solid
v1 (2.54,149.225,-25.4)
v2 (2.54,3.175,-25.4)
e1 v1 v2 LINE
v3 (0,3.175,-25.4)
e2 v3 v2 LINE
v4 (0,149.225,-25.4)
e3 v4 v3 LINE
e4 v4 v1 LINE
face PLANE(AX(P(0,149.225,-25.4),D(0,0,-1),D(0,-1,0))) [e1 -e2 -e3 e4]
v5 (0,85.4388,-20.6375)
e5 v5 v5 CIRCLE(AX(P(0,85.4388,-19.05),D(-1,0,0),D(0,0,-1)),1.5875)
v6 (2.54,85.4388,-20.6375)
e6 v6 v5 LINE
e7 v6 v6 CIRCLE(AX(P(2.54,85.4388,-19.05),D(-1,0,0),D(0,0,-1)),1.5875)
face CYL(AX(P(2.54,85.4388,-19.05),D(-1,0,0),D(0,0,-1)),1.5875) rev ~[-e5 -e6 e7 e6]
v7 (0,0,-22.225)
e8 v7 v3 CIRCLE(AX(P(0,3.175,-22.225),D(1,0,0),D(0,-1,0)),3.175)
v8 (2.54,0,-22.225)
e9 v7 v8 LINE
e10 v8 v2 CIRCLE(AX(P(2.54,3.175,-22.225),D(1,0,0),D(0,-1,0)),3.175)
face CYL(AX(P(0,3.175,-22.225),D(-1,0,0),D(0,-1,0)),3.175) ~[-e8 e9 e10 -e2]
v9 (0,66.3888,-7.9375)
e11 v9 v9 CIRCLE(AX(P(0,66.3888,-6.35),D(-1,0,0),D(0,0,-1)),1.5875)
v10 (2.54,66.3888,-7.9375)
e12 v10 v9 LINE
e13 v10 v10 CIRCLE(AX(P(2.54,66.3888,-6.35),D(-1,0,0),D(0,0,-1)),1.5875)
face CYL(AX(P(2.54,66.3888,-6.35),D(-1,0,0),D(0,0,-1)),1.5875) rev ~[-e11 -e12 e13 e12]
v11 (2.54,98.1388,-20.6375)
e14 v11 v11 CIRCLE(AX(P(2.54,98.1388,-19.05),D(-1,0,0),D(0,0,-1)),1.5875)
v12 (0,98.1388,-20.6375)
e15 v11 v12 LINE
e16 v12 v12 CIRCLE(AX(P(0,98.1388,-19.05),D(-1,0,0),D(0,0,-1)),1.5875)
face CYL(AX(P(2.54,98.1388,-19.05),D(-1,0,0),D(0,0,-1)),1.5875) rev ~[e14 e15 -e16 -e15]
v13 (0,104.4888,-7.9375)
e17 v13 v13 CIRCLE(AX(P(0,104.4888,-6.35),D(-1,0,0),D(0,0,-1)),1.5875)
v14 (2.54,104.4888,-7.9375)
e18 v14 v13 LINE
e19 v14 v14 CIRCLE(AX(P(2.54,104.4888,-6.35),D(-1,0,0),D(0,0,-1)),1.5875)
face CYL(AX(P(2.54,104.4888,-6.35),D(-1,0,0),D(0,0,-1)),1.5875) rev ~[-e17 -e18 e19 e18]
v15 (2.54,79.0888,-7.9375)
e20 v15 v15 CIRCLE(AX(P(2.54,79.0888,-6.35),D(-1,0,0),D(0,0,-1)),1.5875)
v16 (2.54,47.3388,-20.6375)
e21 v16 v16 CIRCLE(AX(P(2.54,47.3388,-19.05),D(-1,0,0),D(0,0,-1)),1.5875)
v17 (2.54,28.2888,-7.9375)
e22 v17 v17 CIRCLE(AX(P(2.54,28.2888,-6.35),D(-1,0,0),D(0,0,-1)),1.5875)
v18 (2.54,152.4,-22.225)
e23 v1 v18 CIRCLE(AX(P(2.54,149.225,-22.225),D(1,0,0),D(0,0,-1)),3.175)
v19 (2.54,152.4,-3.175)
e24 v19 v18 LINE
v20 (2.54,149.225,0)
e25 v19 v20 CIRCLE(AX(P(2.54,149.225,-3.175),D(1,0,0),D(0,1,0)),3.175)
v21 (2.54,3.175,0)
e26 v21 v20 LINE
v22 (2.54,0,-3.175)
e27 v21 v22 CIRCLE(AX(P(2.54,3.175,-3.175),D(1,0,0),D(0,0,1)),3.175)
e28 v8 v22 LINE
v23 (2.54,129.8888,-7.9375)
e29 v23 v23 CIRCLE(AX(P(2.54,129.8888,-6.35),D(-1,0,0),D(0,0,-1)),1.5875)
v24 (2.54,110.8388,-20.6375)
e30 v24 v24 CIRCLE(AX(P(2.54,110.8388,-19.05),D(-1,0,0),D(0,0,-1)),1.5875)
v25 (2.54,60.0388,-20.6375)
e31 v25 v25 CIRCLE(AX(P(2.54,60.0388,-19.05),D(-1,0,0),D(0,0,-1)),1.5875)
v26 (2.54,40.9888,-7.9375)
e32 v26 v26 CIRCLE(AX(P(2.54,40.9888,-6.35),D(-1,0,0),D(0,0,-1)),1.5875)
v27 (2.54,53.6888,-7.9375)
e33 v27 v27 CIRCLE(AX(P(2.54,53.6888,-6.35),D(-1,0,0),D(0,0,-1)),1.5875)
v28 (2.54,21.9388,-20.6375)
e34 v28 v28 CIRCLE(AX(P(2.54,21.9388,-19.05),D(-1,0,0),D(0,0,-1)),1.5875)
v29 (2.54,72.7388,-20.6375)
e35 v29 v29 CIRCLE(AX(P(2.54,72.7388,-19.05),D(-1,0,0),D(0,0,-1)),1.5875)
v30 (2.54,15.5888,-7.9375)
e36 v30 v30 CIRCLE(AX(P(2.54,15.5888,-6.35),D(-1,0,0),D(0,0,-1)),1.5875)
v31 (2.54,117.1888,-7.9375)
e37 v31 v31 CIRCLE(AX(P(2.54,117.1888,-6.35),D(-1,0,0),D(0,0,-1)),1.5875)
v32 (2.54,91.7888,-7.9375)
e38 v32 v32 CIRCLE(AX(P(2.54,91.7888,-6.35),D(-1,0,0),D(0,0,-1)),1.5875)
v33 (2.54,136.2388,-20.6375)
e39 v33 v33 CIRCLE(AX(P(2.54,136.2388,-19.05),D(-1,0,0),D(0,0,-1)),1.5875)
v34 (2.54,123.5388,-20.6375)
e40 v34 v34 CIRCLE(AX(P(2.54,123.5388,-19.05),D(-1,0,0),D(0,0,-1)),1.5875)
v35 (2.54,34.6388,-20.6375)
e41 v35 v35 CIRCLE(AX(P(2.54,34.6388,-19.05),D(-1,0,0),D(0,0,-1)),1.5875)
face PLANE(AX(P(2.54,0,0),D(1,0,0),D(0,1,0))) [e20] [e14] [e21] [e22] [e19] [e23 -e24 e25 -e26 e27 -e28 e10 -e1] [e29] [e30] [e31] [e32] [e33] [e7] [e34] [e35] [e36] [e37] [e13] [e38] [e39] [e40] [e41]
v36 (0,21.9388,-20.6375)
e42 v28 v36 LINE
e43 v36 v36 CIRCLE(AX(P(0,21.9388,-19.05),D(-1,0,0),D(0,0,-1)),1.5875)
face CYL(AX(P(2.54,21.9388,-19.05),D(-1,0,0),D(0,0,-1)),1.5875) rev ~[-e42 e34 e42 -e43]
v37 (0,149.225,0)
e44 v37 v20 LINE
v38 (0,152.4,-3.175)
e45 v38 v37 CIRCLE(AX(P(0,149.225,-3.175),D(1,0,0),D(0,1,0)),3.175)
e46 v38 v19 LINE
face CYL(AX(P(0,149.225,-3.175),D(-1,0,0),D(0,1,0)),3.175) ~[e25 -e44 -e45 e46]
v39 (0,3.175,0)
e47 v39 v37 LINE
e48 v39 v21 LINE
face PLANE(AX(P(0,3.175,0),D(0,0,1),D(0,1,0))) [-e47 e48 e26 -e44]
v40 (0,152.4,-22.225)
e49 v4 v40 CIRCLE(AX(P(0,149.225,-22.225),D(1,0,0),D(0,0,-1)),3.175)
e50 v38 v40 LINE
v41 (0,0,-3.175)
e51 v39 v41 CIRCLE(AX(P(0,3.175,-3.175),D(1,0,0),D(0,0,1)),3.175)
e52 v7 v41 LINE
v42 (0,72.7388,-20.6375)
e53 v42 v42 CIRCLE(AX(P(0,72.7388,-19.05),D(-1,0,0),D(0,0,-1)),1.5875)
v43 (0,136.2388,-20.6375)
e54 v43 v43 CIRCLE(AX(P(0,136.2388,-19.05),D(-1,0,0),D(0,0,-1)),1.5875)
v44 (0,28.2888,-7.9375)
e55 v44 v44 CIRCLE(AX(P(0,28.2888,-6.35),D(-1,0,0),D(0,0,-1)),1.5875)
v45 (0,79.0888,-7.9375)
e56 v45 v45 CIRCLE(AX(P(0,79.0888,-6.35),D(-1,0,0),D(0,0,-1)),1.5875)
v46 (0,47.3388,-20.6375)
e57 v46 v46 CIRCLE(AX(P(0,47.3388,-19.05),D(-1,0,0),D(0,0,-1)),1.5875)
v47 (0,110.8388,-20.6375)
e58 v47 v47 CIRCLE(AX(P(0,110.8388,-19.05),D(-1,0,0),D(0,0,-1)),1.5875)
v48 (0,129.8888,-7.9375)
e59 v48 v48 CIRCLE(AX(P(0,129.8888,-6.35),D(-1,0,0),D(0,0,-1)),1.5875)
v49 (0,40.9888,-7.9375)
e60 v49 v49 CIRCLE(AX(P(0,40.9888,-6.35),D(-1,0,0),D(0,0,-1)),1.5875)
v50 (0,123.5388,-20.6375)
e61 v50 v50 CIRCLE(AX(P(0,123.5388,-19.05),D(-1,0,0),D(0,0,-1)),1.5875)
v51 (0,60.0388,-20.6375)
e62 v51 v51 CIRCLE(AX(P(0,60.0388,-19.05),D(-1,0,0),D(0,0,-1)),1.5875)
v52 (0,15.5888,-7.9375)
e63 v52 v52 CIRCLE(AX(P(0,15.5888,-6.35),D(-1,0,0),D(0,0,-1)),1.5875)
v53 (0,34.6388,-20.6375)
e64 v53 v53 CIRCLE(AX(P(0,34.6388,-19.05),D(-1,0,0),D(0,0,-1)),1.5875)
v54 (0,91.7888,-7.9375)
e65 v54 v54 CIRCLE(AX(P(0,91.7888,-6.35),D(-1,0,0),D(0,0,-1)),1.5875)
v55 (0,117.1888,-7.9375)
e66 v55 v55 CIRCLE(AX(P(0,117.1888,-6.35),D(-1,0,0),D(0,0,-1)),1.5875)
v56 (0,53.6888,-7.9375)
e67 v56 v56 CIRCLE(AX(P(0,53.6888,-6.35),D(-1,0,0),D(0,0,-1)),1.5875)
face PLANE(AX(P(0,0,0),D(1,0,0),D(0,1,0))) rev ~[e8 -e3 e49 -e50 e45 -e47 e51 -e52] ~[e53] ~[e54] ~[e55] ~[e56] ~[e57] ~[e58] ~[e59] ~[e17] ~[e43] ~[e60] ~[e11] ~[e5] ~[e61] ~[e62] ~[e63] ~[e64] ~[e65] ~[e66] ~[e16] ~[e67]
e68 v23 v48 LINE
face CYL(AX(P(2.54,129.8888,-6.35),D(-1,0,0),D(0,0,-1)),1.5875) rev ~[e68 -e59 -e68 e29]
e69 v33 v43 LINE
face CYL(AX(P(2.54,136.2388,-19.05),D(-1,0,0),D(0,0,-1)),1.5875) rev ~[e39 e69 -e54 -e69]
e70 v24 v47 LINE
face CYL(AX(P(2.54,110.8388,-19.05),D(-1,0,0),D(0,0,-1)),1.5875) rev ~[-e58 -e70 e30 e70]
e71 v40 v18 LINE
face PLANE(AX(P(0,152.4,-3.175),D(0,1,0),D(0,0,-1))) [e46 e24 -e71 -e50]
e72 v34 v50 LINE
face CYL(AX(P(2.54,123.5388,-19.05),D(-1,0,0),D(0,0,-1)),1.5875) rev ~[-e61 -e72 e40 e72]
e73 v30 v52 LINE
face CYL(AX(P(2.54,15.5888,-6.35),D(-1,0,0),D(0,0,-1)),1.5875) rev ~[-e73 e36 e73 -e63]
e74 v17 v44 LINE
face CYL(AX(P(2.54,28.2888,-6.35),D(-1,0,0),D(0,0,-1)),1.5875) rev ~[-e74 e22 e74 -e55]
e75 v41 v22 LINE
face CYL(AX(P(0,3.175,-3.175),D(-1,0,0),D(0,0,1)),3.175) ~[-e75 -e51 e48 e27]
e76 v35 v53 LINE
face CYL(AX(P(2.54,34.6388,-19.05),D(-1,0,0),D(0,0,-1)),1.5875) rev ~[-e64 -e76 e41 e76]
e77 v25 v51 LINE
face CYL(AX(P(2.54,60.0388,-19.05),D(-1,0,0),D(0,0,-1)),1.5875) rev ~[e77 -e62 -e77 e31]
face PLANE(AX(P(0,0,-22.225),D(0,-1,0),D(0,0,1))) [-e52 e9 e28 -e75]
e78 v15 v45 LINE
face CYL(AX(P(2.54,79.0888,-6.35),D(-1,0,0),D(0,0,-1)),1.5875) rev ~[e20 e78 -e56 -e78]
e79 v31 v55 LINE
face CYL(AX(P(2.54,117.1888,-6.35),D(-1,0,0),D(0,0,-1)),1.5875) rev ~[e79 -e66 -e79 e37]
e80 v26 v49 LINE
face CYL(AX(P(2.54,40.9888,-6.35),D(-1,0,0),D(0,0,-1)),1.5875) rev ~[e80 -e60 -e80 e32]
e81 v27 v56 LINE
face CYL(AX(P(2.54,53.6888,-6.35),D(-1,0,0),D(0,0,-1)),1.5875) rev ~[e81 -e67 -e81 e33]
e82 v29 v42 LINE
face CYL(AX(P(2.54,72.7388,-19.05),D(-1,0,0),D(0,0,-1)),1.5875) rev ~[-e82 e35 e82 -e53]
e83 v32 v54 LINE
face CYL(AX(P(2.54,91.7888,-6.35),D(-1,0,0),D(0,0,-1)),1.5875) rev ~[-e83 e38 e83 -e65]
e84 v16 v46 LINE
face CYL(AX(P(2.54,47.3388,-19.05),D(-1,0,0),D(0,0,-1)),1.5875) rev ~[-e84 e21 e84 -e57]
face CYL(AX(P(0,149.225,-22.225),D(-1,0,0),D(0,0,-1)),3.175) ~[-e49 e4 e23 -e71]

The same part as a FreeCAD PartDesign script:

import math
import FreeCAD as App
import Part
import Sketcher

V = App.Vector
Q = App.Units.Quantity

doc = App.newDocument("Part")
body = doc.addObject("PartDesign::Body", "Body")

# Sketch on YZ plane
sketch1 = body.newObject("Sketcher::SketchObject", "Sketch")
sketch1.AttachmentSupport = (doc.getObject("YZ_Plane"), [""])
sketch1.MapMode = "FlatFace"
sketch1.addGeometry([
    Part.LineSegment(V(149.2, 0, 0), V(3.2, 0, 0)),  # 0
    Part.ArcOfCircle(Part.Circle(V(3.2, -3.2, 0), V(0, 0, 1), 3.2), math.radians(90), math.radians(180)),  # 1
    Part.LineSegment(V(0, -3.2, 0), V(0, -22.2, 0)),  # 2
    Part.ArcOfCircle(Part.Circle(V(3.2, -22.2, 0), V(0, 0, 1), 3.2), math.radians(180), math.radians(270)),  # 3
    Part.LineSegment(V(3.2, -25.4, 0), V(149.2, -25.4, 0)),  # 4
    Part.ArcOfCircle(Part.Circle(V(149.2, -22.2, 0), V(0, 0, 1), 3.2), math.radians(-90), math.radians(0)),  # 5
    Part.LineSegment(V(152.4, -22.2, 0), V(152.4, -3.2, 0)),  # 6
    Part.ArcOfCircle(Part.Circle(V(149.2, -3.2, 0), V(0, 0, 1), 3.2), math.radians(0), math.radians(90)),  # 7
], False)
sketch1.addConstraint([
    Sketcher.Constraint("Tangent", 0, 2, 1, 1),
    Sketcher.Constraint("Tangent", 1, 2, 2, 1),
    Sketcher.Constraint("Tangent", 2, 2, 3, 1),
    Sketcher.Constraint("Tangent", 3, 2, 4, 1),
    Sketcher.Constraint("Tangent", 4, 2, 5, 1),
    Sketcher.Constraint("Tangent", 5, 2, 6, 1),
    Sketcher.Constraint("Tangent", 6, 2, 7, 1),
    Sketcher.Constraint("Tangent", 7, 2, 0, 1),
    Sketcher.Constraint("Horizontal", 0),
    Sketcher.Constraint("Vertical", 2),
    Sketcher.Constraint("Horizontal", 4),
    Sketcher.Constraint("Vertical", 6),
    Sketcher.Constraint("Equal", 1, 3),
    Sketcher.Constraint("Equal", 3, 5),
    Sketcher.Constraint("Equal", 5, 7),
    Sketcher.Constraint("PointOnObject", 0, 2, -1),
    Sketcher.Constraint("PointOnObject", 1, 2, -2),
    Sketcher.Constraint("DistanceY", 3, 2, -1, 1, Q("1 in")),
    Sketcher.Constraint("DistanceX", -1, 1, 5, 2, Q("6 in")),
    Sketcher.Constraint("Radius", 1, Q("0.125 in")),
])
pad1 = body.newObject("PartDesign::Pad", "Pad")
pad1.Profile = sketch1
pad1.Length = Q("0.1 in")

# Sketch on YZ plane
sketch2 = body.newObject("Sketcher::SketchObject", "Sketch001")
sketch2.AttachmentSupport = (doc.getObject("YZ_Plane"), [""])
sketch2.MapMode = "FlatFace"
sketch2.AttachmentOffset = App.Placement(V(0, 0, 0.1 * 25.4), App.Rotation())
sketch2.addGeometry([
    Part.Circle(V(85.4, -19.1, 0), V(0, 0, 1), 1.6),  # 0
    Part.Circle(V(91.8, -6.3, 0), V(0, 0, 1), 1.6),  # 1
    Part.Circle(V(98.1, -19.1, 0), V(0, 0, 1), 1.6),  # 2
    Part.Circle(V(79.1, -6.3, 0), V(0, 0, 1), 1.6),  # 3
    Part.Circle(V(72.7, -19.1, 0), V(0, 0, 1), 1.6),  # 4
    Part.Circle(V(66.4, -6.3, 0), V(0, 0, 1), 1.6),  # 5
    Part.Circle(V(60, -19.1, 0), V(0, 0, 1), 1.6),  # 6
    Part.Circle(V(53.7, -6.3, 0), V(0, 0, 1), 1.6),  # 7
    Part.Circle(V(47.3, -19.1, 0), V(0, 0, 1), 1.6),  # 8
    Part.Circle(V(34.6, -19.1, 0), V(0, 0, 1), 1.6),  # 9
    Part.Circle(V(21.9, -19.1, 0), V(0, 0, 1), 1.6),  # 10
    Part.Circle(V(15.6, -6.3, 0), V(0, 0, 1), 1.6),  # 11
    Part.Circle(V(28.3, -6.3, 0), V(0, 0, 1), 1.6),  # 12
    Part.Circle(V(41, -6.3, 0), V(0, 0, 1), 1.6),  # 13
    Part.Circle(V(110.8, -19.1, 0), V(0, 0, 1), 1.6),  # 14
    Part.Circle(V(117.2, -6.3, 0), V(0, 0, 1), 1.6),  # 15
    Part.Circle(V(123.5, -19.1, 0), V(0, 0, 1), 1.6),  # 16
    Part.Circle(V(129.9, -6.3, 0), V(0, 0, 1), 1.6),  # 17
    Part.Circle(V(136.2, -19.1, 0), V(0, 0, 1), 1.6),  # 18
    Part.Circle(V(104.5, -6.3, 0), V(0, 0, 1), 1.6),  # 19
], False)
sketch2.addConstraint([
    Sketcher.Constraint("Equal", 0, 1),
    Sketcher.Constraint("Equal", 1, 2),
    Sketcher.Constraint("Equal", 2, 3),
    Sketcher.Constraint("Equal", 3, 4),
    Sketcher.Constraint("Equal", 4, 5),
    Sketcher.Constraint("Equal", 5, 6),
    Sketcher.Constraint("Equal", 6, 7),
    Sketcher.Constraint("Equal", 7, 8),
    Sketcher.Constraint("Equal", 8, 9),
    Sketcher.Constraint("Equal", 9, 10),
    Sketcher.Constraint("Equal", 10, 11),
    Sketcher.Constraint("Equal", 11, 12),
    Sketcher.Constraint("Equal", 12, 13),
    Sketcher.Constraint("Equal", 13, 14),
    Sketcher.Constraint("Equal", 14, 15),
    Sketcher.Constraint("Equal", 15, 16),
    Sketcher.Constraint("Equal", 16, 17),
    Sketcher.Constraint("Equal", 17, 18),
    Sketcher.Constraint("Equal", 18, 19),
    Sketcher.Constraint("Horizontal", 0, 3, 2, 3),
    Sketcher.Constraint("Horizontal", 1, 3, 3, 3),
    Sketcher.Constraint("Horizontal", 2, 3, 4, 3),
    Sketcher.Constraint("Horizontal", 3, 3, 5, 3),
    Sketcher.Constraint("Horizontal", 4, 3, 6, 3),
    Sketcher.Constraint("Horizontal", 5, 3, 7, 3),
    Sketcher.Constraint("Horizontal", 6, 3, 8, 3),
    Sketcher.Constraint("Horizontal", 8, 3, 9, 3),
    Sketcher.Constraint("Horizontal", 9, 3, 10, 3),
    Sketcher.Constraint("Horizontal", 7, 3, 11, 3),
    Sketcher.Constraint("Horizontal", 11, 3, 12, 3),
    Sketcher.Constraint("Horizontal", 12, 3, 13, 3),
    Sketcher.Constraint("Horizontal", 10, 3, 14, 3),
    Sketcher.Constraint("Horizontal", 13, 3, 15, 3),
    Sketcher.Constraint("Horizontal", 14, 3, 16, 3),
    Sketcher.Constraint("Horizontal", 15, 3, 17, 3),
    Sketcher.Constraint("Horizontal", 16, 3, 18, 3),
    Sketcher.Constraint("Horizontal", 17, 3, 19, 3),
    Sketcher.Constraint("Diameter", 0, Q("0.125 in")),
    Sketcher.Constraint("DistanceX", 4, 3, 2, 3, Q("1 in")),
    Sketcher.Constraint("DistanceX", 5, 3, 1, 3, Q("1 in")),
    Sketcher.Constraint("DistanceX", 6, 3, 0, 3, Q("1 in")),
    Sketcher.Constraint("DistanceX", 7, 3, 3, 3, Q("1 in")),
    Sketcher.Constraint("DistanceX", 8, 3, 4, 3, Q("1 in")),
    Sketcher.Constraint("DistanceX", 9, 3, 6, 3, Q("1 in")),
    Sketcher.Constraint("DistanceX", 10, 3, 8, 3, Q("1 in")),
    Sketcher.Constraint("DistanceX", 12, 3, 7, 3, Q("1 in")),
    Sketcher.Constraint("DistanceX", 0, 3, 14, 3, Q("1 in")),
    Sketcher.Constraint("DistanceX", 1, 3, 15, 3, Q("1 in")),
    Sketcher.Constraint("DistanceX", 2, 3, 16, 3, Q("1 in")),
    Sketcher.Constraint("DistanceX", 14, 3, 18, 3, Q("1 in")),
    Sketcher.Constraint("DistanceY", 0, 3, 1, 3, Q("0.5 in")),
    Sketcher.Constraint("DistanceX", 0, 3, 2, 3, Q("0.5 in")),
    Sketcher.Constraint("DistanceX", 3, 3, 1, 3, Q("0.5 in")),
    Sketcher.Constraint("DistanceX", 11, 3, 7, 3, Q("1.5 in")),
    Sketcher.Constraint("DistanceX", 12, 3, 13, 3, Q("0.5 in")),
    Sketcher.Constraint("DistanceX", 15, 3, 17, 3, Q("0.5 in")),
    Sketcher.Constraint("DistanceX", 1, 3, 19, 3, Q("0.5 in")),
    Sketcher.Constraint("DistanceY", 0, 3, -1, 1, Q("0.75 in")),
    Sketcher.Constraint("DistanceX", 0, 3, 1, 3, Q("0.25 in")),
    Sketcher.Constraint("DistanceX", -1, 1, 0, 3, 85.4388),
])
doc.recompute()
hole = body.newObject("PartDesign::Hole", "Hole")
hole.Profile = sketch2
hole.ThreadType = "None"
hole.Diameter = Q("0.125 in")
hole.DepthType = "ThroughAll"

doc.recompute()
